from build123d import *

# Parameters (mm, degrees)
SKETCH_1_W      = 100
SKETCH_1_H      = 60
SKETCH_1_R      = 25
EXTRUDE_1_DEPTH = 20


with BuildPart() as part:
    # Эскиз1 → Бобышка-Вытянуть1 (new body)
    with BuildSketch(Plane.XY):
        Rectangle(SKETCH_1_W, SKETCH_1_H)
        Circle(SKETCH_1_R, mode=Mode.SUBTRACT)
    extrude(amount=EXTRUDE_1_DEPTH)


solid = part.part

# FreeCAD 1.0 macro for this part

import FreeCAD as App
import Part
import Sketcher
from FreeCAD import Vector
Q = App.Units.Quantity


def add_polygon(sketch, points):
    """Adds a closed chain of lines whose ends are joined by coincident constraints."""
    first, n = sketch.GeometryCount, len(points)
    for a, b in zip(points, points[1:] + points[:1]):
        sketch.addGeometry(Part.LineSegment(App.Vector(*a, 0), App.Vector(*b, 0)), False)
    for i in range(n):
        sketch.addConstraint(Sketcher.Constraint("Coincident", first + i, 2, first + (i + 1) % n, 1))

doc = App.newDocument("Part")
body = doc.addObject("PartDesign::Body", "Body")

# Sketch on XY plane
sketch1 = doc.addObject("Sketcher::SketchObject", "Sketch")
body.addObject(sketch1)
sketch1.AttachmentSupport = (doc.XY_Plane, [""])
sketch1.MapMode = "FlatFace"
add_polygon(sketch1, [(-50, 30), (-50, -30), (50, -30), (50, 30)])  # lines 0-3
sketch1.addGeometry(Part.Circle(Vector(0, 0, 0), Vector(0, 0, 1), 25), False)  # 4
sketch1.addConstraint([
    Sketcher.Constraint("Vertical", 0),
    Sketcher.Constraint("Horizontal", 1),
    Sketcher.Constraint("Vertical", 2),
    Sketcher.Constraint("Horizontal", 3),
    Sketcher.Constraint("Coincident", 4, 3, -1, 1),
    Sketcher.Constraint("Symmetric", 0, 2, 2, 2, -1, 1),
    Sketcher.Constraint("Diameter", 4, Q("50 mm")),
    Sketcher.Constraint("DistanceX", 1, 1, 1, 2, Q("100 mm")),
    Sketcher.Constraint("DistanceY", 0, 2, 0, 1, Q("60 mm")),
])
pad1 = doc.addObject("PartDesign::Pad", "Pad")
body.addObject(pad1)
pad1.Profile = sketch1
pad1.Length = 20

doc.recompute()
